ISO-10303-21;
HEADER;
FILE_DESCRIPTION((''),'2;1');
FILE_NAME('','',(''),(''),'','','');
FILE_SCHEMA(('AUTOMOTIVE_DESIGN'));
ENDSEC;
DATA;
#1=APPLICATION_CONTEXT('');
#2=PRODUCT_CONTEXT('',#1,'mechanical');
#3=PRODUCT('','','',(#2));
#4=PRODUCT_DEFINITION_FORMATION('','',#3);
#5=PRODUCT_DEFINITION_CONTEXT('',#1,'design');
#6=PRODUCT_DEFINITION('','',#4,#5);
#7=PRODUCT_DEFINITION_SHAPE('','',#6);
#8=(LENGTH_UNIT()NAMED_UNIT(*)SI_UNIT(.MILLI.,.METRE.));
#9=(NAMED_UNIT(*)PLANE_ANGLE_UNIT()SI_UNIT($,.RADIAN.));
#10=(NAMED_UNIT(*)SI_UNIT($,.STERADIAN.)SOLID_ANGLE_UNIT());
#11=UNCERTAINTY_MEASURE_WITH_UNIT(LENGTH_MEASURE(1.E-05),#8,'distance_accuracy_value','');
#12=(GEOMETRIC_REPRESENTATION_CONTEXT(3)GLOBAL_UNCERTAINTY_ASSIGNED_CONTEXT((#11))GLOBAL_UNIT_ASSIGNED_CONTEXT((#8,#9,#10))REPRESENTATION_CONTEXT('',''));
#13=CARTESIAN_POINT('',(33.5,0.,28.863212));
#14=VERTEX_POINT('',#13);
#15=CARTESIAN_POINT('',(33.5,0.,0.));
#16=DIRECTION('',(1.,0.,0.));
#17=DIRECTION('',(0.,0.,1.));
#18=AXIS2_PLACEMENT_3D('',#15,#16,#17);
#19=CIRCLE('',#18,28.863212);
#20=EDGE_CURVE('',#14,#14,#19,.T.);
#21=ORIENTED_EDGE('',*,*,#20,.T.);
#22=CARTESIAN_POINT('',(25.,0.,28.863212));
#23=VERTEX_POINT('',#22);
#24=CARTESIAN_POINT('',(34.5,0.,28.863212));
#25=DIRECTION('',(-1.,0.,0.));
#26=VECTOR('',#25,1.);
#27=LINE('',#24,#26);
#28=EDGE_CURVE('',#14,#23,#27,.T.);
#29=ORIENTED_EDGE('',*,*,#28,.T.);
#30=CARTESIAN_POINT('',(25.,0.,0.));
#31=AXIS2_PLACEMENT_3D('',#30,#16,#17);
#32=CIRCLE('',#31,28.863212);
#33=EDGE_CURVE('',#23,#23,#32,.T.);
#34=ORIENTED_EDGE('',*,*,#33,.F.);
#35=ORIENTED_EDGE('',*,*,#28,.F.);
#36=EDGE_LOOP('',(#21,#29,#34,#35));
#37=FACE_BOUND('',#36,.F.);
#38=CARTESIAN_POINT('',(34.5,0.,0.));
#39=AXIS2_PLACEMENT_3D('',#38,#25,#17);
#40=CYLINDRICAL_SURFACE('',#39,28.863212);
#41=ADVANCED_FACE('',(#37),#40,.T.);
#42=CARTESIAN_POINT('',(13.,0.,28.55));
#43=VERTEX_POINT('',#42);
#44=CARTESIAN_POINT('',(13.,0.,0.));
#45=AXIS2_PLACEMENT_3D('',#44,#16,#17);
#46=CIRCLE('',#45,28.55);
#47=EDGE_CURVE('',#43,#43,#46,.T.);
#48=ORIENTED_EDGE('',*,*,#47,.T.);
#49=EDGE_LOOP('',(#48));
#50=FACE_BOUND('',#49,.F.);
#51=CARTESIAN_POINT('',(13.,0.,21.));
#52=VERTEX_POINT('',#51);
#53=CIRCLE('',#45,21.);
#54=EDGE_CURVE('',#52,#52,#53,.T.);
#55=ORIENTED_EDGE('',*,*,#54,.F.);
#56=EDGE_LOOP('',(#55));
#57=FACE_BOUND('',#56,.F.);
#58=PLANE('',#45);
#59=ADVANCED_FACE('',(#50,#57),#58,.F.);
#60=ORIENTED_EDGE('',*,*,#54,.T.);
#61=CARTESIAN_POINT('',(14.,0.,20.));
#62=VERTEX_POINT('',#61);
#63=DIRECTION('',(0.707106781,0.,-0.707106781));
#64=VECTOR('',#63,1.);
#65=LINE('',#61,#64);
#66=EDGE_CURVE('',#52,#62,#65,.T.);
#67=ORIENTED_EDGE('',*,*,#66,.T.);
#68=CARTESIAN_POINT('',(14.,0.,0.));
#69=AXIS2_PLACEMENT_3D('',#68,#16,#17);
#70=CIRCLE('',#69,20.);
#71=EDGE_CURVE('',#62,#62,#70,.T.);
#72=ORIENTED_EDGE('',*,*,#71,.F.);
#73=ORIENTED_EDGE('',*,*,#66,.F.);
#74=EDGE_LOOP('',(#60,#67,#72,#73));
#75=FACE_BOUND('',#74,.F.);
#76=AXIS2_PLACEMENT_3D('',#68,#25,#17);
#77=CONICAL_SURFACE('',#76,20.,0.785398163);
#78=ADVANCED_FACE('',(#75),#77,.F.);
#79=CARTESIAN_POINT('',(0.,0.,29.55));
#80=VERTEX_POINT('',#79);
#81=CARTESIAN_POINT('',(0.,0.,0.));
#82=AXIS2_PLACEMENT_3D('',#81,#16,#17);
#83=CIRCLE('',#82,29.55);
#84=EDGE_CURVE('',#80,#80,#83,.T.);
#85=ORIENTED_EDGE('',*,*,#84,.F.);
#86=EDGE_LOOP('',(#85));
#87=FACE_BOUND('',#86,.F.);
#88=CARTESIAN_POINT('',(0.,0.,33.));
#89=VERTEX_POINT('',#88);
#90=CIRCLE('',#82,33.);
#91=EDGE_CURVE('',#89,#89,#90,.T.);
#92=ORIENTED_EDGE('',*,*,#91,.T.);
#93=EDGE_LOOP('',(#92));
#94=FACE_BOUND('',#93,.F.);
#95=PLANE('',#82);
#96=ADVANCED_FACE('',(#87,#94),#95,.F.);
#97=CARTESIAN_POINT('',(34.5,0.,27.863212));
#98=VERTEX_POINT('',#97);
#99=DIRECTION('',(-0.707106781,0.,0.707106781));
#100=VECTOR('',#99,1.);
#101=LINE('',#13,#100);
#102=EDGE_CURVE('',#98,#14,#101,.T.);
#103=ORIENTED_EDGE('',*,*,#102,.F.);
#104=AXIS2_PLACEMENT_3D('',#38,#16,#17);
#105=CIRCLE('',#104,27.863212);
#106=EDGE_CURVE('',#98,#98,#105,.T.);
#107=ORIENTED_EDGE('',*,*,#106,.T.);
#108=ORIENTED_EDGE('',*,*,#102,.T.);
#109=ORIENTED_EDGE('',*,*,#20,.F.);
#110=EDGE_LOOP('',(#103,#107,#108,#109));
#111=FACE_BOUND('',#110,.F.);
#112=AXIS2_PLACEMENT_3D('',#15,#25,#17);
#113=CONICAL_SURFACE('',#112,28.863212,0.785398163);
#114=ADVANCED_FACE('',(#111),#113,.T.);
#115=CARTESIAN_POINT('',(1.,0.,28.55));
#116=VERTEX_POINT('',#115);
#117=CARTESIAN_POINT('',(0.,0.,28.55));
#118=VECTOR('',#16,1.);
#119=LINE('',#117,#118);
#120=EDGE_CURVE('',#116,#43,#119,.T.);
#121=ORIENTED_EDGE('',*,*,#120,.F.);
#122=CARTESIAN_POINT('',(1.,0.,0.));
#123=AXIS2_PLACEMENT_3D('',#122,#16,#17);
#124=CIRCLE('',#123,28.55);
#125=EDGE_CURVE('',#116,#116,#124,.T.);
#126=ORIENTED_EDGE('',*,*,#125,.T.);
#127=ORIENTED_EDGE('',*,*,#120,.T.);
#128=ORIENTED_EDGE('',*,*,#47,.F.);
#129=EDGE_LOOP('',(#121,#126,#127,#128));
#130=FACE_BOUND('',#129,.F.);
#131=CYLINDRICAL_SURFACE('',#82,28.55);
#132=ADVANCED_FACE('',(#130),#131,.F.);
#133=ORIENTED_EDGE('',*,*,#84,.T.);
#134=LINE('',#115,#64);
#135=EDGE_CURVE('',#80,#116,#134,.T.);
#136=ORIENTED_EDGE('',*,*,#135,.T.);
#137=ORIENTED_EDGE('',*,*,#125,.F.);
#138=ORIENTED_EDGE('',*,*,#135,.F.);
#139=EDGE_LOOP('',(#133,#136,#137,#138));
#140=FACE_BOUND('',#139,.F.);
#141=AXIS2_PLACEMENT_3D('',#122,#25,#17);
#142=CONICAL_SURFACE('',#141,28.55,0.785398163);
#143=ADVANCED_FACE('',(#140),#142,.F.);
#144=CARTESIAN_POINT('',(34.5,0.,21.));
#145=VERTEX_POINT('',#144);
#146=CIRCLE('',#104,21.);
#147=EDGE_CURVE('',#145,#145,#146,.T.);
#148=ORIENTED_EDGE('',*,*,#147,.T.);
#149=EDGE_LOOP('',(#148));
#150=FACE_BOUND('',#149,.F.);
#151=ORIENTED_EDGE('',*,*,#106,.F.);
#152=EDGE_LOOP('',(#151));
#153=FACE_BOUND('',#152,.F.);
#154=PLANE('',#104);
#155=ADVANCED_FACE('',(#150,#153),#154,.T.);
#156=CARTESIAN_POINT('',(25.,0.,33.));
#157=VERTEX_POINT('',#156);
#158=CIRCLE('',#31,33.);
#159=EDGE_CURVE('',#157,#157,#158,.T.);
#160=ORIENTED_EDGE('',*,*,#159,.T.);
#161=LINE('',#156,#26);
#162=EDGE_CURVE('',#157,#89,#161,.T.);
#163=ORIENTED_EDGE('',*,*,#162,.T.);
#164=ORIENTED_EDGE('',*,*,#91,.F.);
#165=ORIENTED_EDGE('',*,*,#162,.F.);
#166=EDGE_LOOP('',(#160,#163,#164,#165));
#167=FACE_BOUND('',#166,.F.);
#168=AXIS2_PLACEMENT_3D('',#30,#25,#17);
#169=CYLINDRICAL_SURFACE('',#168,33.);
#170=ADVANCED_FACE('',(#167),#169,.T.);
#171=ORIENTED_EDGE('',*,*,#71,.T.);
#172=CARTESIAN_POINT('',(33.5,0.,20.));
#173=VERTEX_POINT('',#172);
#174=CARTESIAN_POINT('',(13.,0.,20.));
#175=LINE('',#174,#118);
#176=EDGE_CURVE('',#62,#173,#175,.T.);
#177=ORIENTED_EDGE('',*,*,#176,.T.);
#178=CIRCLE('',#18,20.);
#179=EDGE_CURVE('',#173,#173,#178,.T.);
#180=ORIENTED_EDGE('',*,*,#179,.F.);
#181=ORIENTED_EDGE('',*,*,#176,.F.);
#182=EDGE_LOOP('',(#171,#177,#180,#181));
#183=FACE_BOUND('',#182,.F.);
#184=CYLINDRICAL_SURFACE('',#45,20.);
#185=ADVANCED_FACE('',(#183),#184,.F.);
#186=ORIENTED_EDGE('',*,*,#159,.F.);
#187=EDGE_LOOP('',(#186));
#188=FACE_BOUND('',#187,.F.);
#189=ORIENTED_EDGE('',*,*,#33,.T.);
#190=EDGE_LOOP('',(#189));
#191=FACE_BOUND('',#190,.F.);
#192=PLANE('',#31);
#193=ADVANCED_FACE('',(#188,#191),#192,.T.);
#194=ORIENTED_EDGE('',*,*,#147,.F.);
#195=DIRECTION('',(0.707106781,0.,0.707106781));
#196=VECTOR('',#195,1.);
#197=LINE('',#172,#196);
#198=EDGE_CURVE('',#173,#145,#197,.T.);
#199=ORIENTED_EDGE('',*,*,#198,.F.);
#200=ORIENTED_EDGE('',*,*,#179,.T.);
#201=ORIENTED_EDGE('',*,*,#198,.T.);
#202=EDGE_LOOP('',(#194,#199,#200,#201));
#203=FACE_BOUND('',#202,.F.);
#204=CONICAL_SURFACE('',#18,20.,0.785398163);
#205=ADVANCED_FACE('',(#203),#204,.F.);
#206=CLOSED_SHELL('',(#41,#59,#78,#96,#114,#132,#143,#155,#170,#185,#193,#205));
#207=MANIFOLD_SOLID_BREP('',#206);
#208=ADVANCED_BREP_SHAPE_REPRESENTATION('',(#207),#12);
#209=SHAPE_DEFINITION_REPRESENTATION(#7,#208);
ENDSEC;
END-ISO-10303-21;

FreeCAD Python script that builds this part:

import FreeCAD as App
import Part
import Sketcher
from FreeCAD import Vector


def edges_at(feature, points):
    """Names of the edges that pass closest to the given points."""
    edges = feature.Shape.Edges
    near = lambda p: min(range(len(edges)), key=lambda i: edges[i].distToShape(Part.Vertex(*p))[0])
    return sorted({f"Edge{near(p) + 1}" for p in points})


def add_polygon(sketch, points):
    """Adds a closed chain of lines whose ends are joined by coincident constraints."""
    first, n = sketch.GeometryCount, len(points)
    for a, b in zip(points, points[1:] + points[:1]):
        sketch.addGeometry(Part.LineSegment(App.Vector(*a, 0), App.Vector(*b, 0)), False)
    for i in range(n):
        sketch.addConstraint(Sketcher.Constraint("Coincident", first + i, 2, first + (i + 1) % n, 1))

doc = App.newDocument("Part")
body = doc.addObject("PartDesign::Body", "Body")

sketch1 = body.newObject("Sketcher::SketchObject", "Sketch")
sketch1.AttachmentSupport = (doc.getObject("XZ_Plane"), [""])
sketch1.MapMode = "FlatFace"
add_polygon(sketch1, [(25, 33), (0, 33), (0, 28.6), (13, 28.6), (13, 20), (34.5, 20), (34.5, 28.9), (25, 28.9)])
sketch1.addConstraint([
    Sketcher.Constraint("Horizontal", 0),
    Sketcher.Constraint("Vertical", 1),
    Sketcher.Constraint("Horizontal", 2),
    Sketcher.Constraint("Vertical", 3),
    Sketcher.Constraint("Horizontal", 4),
    Sketcher.Constraint("Vertical", 5),
    Sketcher.Constraint("Horizontal", 6),
    Sketcher.Constraint("Vertical", 7),
    Sketcher.Constraint("PointOnObject", 0, 2, -2),
    Sketcher.Constraint("DistanceX", 0, 2, 0, 1, 25.0),
    Sketcher.Constraint("DistanceX", 2, 1, 2, 2, 13.0),
    Sketcher.Constraint("DistanceX", 4, 1, 4, 2, 21.5),
    Sketcher.Constraint("DistanceY", -1, 1, 0, 2, 33.0),
    Sketcher.Constraint("DistanceY", -1, 1, 3, 2, 20.0),
    Sketcher.Constraint("DistanceY", 1, 2, 1, 1, 4.45),
    Sketcher.Constraint("DistanceY", 5, 1, 5, 2, 8.863212),
])
revolution = body.newObject("PartDesign::Revolution", "Revolution")
revolution.Profile = sketch1
revolution.ReferenceAxis = (sketch1, ["H_Axis"])
revolution.Angle = 360
doc.recompute()

chamfer = body.newObject("PartDesign::Chamfer", "Chamfer")
chamfer.Base = (revolution, edges_at(revolution, [
    (0, 0, -28.55),
    (34.5, 0, -20),
    (34.5, 0, -28.863),
    (13, 0, -20),
]))
chamfer.Size = 1

doc.recompute()
